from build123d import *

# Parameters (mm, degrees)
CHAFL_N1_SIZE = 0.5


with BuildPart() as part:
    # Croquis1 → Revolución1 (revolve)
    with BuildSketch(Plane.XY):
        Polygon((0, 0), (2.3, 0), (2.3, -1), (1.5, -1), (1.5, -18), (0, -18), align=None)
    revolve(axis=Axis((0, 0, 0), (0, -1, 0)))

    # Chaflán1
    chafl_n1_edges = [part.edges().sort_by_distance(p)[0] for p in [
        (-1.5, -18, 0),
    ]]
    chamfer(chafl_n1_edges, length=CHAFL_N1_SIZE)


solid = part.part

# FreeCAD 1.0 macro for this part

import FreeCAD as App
import Part
import Sketcher
Q = App.Units.Quantity


def edges_at(feature, points):
    """Names of the edges that pass closest to the given points."""
    edges = feature.Shape.Edges
    near = lambda p: min(range(len(edges)), key=lambda i: edges[i].distToShape(Part.Vertex(*p))[0])
    return sorted({f"Edge{near(p) + 1}" for p in points})

doc = App.newDocument("Part")
body = doc.addObject("PartDesign::Body", "Body")

# Sketch on XY plane
sketch1 = body.newObject("Sketcher::SketchObject", "Sketch")
sketch1.AttachmentSupport = (doc.getObject("XY_Plane"), [""])
sketch1.MapMode = "FlatFace"
sketch1.addGeometry([
    Part.LineSegment(App.Vector(2.3, 0, 0), App.Vector(0, 0, 0)),  # 0
    Part.LineSegment(App.Vector(0, 0, 0), App.Vector(0, -18, 0)),  # 1
    Part.LineSegment(App.Vector(0, -18, 0), App.Vector(1.5, -18, 0)),  # 2
    Part.LineSegment(App.Vector(1.5, -18, 0), App.Vector(1.5, -1, 0)),  # 3
    Part.LineSegment(App.Vector(1.5, -1, 0), App.Vector(2.3, -1, 0)),  # 4
    Part.LineSegment(App.Vector(2.3, -1, 0), App.Vector(2.3, 0, 0)),  # 5
], False)
sketch1.addConstraint([
    Sketcher.Constraint("Coincident", 0, 2, 1, 1),
    Sketcher.Constraint("Coincident", 1, 2, 2, 1),
    Sketcher.Constraint("Coincident", 2, 2, 3, 1),
    Sketcher.Constraint("Coincident", 3, 2, 4, 1),
    Sketcher.Constraint("Coincident", 4, 2, 5, 1),
    Sketcher.Constraint("Coincident", 5, 2, 0, 1),
    Sketcher.Constraint("Horizontal", 0),
    Sketcher.Constraint("Vertical", 1),
    Sketcher.Constraint("Horizontal", 2),
    Sketcher.Constraint("Vertical", 3),
    Sketcher.Constraint("Horizontal", 4),
    Sketcher.Constraint("Vertical", 5),
    Sketcher.Constraint("Coincident", 0, 2, -1, 1),
    Sketcher.Constraint("DistanceY", 1, 2, 1, 1, Q("18 mm")),
    Sketcher.Constraint("DistanceY", 3, 1, 3, 2, Q("17 mm")),
    Sketcher.Constraint("DistanceX", 0, 2, 0, 1, Q("2.3 mm")),
    Sketcher.Constraint("DistanceX", 2, 1, 2, 2, Q("1.5 mm")),
])
revolution = body.newObject("PartDesign::Revolution", "Revolution")
revolution.Profile = sketch1
revolution.ReferenceAxis = (sketch1, ["V_Axis"])
revolution.Angle = 360
doc.recompute()

chamfer = body.newObject("PartDesign::Chamfer", "Chamfer")
chamfer.Base = (revolution, edges_at(revolution, [(-1.5, -18, 0)]))
chamfer.Size = 0.5

doc.recompute()
